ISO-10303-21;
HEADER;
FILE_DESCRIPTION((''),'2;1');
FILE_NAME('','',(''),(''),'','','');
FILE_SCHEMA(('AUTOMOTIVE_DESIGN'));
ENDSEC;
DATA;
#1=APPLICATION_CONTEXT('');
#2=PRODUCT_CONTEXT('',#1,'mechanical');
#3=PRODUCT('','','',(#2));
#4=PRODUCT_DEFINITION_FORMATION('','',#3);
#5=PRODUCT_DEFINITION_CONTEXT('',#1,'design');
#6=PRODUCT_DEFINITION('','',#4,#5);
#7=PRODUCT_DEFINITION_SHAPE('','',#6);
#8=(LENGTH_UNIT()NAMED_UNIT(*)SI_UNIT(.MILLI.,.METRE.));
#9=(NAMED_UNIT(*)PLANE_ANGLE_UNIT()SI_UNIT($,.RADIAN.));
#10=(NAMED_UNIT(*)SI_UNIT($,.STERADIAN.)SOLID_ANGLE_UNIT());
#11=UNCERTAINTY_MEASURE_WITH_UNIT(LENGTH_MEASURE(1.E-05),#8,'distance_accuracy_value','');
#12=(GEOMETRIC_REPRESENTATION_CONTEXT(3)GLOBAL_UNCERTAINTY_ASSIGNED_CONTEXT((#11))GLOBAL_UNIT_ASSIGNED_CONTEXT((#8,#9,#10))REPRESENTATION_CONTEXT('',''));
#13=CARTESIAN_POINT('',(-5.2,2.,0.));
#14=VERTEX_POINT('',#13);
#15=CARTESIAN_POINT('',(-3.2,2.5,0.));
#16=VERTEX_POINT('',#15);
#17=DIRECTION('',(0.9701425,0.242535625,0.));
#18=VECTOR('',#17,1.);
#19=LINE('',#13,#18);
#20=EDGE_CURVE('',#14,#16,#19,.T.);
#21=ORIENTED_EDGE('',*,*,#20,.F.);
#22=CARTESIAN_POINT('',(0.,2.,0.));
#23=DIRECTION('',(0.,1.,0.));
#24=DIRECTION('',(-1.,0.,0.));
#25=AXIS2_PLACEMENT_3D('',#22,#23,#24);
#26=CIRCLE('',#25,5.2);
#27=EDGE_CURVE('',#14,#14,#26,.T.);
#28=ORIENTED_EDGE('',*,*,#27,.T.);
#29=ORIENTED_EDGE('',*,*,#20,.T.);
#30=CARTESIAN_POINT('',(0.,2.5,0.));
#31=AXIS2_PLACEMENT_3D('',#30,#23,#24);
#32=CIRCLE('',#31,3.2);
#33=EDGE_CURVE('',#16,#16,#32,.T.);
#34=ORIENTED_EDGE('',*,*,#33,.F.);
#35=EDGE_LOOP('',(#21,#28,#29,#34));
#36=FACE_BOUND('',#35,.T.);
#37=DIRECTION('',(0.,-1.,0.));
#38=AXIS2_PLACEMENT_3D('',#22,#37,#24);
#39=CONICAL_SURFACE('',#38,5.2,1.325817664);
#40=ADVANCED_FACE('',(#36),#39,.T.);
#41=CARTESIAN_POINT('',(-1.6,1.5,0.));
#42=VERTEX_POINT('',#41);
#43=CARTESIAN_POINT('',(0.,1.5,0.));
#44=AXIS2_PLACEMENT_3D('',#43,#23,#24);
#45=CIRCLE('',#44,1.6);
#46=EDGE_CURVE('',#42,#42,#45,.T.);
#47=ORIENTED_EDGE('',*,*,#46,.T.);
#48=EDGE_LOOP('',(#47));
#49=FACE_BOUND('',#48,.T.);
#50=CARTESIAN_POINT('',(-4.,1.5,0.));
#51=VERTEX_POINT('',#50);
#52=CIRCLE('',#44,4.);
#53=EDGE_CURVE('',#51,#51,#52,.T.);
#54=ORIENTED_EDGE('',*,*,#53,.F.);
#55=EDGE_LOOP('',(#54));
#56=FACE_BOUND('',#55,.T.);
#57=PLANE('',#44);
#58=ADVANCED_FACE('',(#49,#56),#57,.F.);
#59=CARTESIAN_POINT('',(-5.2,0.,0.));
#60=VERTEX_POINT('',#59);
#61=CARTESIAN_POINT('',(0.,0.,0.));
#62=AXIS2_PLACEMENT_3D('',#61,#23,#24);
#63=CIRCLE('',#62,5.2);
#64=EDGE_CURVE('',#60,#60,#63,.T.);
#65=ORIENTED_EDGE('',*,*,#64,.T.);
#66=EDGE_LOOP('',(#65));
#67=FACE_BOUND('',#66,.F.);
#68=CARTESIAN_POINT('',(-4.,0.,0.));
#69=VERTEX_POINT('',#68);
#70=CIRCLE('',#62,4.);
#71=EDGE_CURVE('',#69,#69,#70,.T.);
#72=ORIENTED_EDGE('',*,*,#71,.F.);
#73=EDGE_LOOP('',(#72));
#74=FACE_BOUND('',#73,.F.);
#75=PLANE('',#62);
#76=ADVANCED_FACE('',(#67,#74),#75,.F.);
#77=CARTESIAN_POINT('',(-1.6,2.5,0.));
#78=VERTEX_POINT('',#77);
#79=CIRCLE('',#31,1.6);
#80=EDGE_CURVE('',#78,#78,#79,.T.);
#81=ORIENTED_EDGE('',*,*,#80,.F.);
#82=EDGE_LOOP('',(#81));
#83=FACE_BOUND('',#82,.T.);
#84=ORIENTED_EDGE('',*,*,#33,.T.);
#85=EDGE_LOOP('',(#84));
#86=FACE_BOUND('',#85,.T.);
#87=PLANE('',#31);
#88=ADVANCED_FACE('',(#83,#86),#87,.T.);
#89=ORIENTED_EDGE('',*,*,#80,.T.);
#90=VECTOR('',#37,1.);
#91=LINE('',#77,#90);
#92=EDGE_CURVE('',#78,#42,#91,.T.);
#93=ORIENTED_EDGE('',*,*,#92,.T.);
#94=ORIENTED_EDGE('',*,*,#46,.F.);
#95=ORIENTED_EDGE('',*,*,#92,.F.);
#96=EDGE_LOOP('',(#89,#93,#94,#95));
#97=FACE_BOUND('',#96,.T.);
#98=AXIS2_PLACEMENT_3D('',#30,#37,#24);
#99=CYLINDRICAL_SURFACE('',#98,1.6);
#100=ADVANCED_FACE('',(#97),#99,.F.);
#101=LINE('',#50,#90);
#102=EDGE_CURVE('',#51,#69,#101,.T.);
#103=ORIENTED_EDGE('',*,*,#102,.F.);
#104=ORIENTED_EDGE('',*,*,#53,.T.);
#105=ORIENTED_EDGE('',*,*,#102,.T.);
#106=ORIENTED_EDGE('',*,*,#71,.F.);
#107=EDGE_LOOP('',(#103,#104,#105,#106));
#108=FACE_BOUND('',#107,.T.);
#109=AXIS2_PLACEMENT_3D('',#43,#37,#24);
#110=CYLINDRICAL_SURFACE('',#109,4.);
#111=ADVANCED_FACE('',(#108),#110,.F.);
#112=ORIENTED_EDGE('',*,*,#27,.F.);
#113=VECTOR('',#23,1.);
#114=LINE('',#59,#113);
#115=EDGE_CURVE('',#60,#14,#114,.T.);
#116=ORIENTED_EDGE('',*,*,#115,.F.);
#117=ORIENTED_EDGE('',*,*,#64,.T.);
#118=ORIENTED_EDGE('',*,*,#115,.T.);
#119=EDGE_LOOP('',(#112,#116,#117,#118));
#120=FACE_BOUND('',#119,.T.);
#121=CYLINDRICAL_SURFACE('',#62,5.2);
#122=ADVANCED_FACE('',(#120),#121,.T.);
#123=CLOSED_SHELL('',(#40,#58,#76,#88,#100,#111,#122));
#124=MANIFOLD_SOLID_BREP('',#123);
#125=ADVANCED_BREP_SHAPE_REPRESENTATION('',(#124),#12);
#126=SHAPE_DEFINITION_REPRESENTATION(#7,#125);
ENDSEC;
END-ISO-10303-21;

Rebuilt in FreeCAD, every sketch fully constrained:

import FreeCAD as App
import Part
import Sketcher
Q = App.Units.Quantity

doc = App.newDocument("Part")
body = doc.addObject("PartDesign::Body", "Body")

sketch1 = body.newObject("Sketcher::SketchObject", "Sketch")
sketch1.AttachmentSupport = (doc.getObject("XY_Plane"), [""])
sketch1.MapMode = "FlatFace"
sketch1.addGeometry([
    Part.LineSegment(App.Vector(-5.2, 2, 0), App.Vector(-5.2, 0, 0)),
    Part.LineSegment(App.Vector(-5.2, 0, 0), App.Vector(-4, 0, 0)),
    Part.LineSegment(App.Vector(-4, 0, 0), App.Vector(-4, 1.5, 0)),
    Part.LineSegment(App.Vector(-4, 1.5, 0), App.Vector(-1.6, 1.5, 0)),
    Part.LineSegment(App.Vector(-1.6, 1.5, 0), App.Vector(-1.6, 2.5, 0)),
    Part.LineSegment(App.Vector(-1.6, 2.5, 0), App.Vector(-3.2, 2.5, 0)),
    Part.LineSegment(App.Vector(-3.2, 2.5, 0), App.Vector(-5.2, 2, 0)),
], False)
sketch1.addConstraint([
    Sketcher.Constraint("Coincident", 0, 2, 1, 1),
    Sketcher.Constraint("Coincident", 1, 2, 2, 1),
    Sketcher.Constraint("Coincident", 2, 2, 3, 1),
    Sketcher.Constraint("Coincident", 3, 2, 4, 1),
    Sketcher.Constraint("Coincident", 4, 2, 5, 1),
    Sketcher.Constraint("Coincident", 5, 2, 6, 1),
    Sketcher.Constraint("Coincident", 6, 2, 0, 1),
    Sketcher.Constraint("Vertical", 0),
    Sketcher.Constraint("Horizontal", 1),
    Sketcher.Constraint("Vertical", 2),
    Sketcher.Constraint("Horizontal", 3),
    Sketcher.Constraint("Vertical", 4),
    Sketcher.Constraint("Horizontal", 5),
    Sketcher.Constraint("PointOnObject", 0, 2, -1),
    Sketcher.Constraint("DistanceY", 0, 2, 0, 1, Q("2 mm")),
    Sketcher.Constraint("DistanceY", 2, 1, 2, 2, Q("1.5 mm")),
    Sketcher.Constraint("DistanceX", 0, 2, 5, 2, Q("2 mm")),
    Sketcher.Constraint("DistanceY", -1, 1, 4, 2, Q("2.5 mm")),
    Sketcher.Constraint("DistanceX", 5, 2, -1, 1, Q("3.2 mm")),
    Sketcher.Constraint("DistanceX", 1, 1, 1, 2, Q("1.2 mm")),
    Sketcher.Constraint("DistanceX", 3, 1, 3, 2, Q("2.4 mm")),
])
revolution = body.newObject("PartDesign::Revolution", "Revolution")
revolution.Profile = sketch1
revolution.ReferenceAxis = (sketch1, ["V_Axis"])
revolution.Angle = 360

doc.recompute()
